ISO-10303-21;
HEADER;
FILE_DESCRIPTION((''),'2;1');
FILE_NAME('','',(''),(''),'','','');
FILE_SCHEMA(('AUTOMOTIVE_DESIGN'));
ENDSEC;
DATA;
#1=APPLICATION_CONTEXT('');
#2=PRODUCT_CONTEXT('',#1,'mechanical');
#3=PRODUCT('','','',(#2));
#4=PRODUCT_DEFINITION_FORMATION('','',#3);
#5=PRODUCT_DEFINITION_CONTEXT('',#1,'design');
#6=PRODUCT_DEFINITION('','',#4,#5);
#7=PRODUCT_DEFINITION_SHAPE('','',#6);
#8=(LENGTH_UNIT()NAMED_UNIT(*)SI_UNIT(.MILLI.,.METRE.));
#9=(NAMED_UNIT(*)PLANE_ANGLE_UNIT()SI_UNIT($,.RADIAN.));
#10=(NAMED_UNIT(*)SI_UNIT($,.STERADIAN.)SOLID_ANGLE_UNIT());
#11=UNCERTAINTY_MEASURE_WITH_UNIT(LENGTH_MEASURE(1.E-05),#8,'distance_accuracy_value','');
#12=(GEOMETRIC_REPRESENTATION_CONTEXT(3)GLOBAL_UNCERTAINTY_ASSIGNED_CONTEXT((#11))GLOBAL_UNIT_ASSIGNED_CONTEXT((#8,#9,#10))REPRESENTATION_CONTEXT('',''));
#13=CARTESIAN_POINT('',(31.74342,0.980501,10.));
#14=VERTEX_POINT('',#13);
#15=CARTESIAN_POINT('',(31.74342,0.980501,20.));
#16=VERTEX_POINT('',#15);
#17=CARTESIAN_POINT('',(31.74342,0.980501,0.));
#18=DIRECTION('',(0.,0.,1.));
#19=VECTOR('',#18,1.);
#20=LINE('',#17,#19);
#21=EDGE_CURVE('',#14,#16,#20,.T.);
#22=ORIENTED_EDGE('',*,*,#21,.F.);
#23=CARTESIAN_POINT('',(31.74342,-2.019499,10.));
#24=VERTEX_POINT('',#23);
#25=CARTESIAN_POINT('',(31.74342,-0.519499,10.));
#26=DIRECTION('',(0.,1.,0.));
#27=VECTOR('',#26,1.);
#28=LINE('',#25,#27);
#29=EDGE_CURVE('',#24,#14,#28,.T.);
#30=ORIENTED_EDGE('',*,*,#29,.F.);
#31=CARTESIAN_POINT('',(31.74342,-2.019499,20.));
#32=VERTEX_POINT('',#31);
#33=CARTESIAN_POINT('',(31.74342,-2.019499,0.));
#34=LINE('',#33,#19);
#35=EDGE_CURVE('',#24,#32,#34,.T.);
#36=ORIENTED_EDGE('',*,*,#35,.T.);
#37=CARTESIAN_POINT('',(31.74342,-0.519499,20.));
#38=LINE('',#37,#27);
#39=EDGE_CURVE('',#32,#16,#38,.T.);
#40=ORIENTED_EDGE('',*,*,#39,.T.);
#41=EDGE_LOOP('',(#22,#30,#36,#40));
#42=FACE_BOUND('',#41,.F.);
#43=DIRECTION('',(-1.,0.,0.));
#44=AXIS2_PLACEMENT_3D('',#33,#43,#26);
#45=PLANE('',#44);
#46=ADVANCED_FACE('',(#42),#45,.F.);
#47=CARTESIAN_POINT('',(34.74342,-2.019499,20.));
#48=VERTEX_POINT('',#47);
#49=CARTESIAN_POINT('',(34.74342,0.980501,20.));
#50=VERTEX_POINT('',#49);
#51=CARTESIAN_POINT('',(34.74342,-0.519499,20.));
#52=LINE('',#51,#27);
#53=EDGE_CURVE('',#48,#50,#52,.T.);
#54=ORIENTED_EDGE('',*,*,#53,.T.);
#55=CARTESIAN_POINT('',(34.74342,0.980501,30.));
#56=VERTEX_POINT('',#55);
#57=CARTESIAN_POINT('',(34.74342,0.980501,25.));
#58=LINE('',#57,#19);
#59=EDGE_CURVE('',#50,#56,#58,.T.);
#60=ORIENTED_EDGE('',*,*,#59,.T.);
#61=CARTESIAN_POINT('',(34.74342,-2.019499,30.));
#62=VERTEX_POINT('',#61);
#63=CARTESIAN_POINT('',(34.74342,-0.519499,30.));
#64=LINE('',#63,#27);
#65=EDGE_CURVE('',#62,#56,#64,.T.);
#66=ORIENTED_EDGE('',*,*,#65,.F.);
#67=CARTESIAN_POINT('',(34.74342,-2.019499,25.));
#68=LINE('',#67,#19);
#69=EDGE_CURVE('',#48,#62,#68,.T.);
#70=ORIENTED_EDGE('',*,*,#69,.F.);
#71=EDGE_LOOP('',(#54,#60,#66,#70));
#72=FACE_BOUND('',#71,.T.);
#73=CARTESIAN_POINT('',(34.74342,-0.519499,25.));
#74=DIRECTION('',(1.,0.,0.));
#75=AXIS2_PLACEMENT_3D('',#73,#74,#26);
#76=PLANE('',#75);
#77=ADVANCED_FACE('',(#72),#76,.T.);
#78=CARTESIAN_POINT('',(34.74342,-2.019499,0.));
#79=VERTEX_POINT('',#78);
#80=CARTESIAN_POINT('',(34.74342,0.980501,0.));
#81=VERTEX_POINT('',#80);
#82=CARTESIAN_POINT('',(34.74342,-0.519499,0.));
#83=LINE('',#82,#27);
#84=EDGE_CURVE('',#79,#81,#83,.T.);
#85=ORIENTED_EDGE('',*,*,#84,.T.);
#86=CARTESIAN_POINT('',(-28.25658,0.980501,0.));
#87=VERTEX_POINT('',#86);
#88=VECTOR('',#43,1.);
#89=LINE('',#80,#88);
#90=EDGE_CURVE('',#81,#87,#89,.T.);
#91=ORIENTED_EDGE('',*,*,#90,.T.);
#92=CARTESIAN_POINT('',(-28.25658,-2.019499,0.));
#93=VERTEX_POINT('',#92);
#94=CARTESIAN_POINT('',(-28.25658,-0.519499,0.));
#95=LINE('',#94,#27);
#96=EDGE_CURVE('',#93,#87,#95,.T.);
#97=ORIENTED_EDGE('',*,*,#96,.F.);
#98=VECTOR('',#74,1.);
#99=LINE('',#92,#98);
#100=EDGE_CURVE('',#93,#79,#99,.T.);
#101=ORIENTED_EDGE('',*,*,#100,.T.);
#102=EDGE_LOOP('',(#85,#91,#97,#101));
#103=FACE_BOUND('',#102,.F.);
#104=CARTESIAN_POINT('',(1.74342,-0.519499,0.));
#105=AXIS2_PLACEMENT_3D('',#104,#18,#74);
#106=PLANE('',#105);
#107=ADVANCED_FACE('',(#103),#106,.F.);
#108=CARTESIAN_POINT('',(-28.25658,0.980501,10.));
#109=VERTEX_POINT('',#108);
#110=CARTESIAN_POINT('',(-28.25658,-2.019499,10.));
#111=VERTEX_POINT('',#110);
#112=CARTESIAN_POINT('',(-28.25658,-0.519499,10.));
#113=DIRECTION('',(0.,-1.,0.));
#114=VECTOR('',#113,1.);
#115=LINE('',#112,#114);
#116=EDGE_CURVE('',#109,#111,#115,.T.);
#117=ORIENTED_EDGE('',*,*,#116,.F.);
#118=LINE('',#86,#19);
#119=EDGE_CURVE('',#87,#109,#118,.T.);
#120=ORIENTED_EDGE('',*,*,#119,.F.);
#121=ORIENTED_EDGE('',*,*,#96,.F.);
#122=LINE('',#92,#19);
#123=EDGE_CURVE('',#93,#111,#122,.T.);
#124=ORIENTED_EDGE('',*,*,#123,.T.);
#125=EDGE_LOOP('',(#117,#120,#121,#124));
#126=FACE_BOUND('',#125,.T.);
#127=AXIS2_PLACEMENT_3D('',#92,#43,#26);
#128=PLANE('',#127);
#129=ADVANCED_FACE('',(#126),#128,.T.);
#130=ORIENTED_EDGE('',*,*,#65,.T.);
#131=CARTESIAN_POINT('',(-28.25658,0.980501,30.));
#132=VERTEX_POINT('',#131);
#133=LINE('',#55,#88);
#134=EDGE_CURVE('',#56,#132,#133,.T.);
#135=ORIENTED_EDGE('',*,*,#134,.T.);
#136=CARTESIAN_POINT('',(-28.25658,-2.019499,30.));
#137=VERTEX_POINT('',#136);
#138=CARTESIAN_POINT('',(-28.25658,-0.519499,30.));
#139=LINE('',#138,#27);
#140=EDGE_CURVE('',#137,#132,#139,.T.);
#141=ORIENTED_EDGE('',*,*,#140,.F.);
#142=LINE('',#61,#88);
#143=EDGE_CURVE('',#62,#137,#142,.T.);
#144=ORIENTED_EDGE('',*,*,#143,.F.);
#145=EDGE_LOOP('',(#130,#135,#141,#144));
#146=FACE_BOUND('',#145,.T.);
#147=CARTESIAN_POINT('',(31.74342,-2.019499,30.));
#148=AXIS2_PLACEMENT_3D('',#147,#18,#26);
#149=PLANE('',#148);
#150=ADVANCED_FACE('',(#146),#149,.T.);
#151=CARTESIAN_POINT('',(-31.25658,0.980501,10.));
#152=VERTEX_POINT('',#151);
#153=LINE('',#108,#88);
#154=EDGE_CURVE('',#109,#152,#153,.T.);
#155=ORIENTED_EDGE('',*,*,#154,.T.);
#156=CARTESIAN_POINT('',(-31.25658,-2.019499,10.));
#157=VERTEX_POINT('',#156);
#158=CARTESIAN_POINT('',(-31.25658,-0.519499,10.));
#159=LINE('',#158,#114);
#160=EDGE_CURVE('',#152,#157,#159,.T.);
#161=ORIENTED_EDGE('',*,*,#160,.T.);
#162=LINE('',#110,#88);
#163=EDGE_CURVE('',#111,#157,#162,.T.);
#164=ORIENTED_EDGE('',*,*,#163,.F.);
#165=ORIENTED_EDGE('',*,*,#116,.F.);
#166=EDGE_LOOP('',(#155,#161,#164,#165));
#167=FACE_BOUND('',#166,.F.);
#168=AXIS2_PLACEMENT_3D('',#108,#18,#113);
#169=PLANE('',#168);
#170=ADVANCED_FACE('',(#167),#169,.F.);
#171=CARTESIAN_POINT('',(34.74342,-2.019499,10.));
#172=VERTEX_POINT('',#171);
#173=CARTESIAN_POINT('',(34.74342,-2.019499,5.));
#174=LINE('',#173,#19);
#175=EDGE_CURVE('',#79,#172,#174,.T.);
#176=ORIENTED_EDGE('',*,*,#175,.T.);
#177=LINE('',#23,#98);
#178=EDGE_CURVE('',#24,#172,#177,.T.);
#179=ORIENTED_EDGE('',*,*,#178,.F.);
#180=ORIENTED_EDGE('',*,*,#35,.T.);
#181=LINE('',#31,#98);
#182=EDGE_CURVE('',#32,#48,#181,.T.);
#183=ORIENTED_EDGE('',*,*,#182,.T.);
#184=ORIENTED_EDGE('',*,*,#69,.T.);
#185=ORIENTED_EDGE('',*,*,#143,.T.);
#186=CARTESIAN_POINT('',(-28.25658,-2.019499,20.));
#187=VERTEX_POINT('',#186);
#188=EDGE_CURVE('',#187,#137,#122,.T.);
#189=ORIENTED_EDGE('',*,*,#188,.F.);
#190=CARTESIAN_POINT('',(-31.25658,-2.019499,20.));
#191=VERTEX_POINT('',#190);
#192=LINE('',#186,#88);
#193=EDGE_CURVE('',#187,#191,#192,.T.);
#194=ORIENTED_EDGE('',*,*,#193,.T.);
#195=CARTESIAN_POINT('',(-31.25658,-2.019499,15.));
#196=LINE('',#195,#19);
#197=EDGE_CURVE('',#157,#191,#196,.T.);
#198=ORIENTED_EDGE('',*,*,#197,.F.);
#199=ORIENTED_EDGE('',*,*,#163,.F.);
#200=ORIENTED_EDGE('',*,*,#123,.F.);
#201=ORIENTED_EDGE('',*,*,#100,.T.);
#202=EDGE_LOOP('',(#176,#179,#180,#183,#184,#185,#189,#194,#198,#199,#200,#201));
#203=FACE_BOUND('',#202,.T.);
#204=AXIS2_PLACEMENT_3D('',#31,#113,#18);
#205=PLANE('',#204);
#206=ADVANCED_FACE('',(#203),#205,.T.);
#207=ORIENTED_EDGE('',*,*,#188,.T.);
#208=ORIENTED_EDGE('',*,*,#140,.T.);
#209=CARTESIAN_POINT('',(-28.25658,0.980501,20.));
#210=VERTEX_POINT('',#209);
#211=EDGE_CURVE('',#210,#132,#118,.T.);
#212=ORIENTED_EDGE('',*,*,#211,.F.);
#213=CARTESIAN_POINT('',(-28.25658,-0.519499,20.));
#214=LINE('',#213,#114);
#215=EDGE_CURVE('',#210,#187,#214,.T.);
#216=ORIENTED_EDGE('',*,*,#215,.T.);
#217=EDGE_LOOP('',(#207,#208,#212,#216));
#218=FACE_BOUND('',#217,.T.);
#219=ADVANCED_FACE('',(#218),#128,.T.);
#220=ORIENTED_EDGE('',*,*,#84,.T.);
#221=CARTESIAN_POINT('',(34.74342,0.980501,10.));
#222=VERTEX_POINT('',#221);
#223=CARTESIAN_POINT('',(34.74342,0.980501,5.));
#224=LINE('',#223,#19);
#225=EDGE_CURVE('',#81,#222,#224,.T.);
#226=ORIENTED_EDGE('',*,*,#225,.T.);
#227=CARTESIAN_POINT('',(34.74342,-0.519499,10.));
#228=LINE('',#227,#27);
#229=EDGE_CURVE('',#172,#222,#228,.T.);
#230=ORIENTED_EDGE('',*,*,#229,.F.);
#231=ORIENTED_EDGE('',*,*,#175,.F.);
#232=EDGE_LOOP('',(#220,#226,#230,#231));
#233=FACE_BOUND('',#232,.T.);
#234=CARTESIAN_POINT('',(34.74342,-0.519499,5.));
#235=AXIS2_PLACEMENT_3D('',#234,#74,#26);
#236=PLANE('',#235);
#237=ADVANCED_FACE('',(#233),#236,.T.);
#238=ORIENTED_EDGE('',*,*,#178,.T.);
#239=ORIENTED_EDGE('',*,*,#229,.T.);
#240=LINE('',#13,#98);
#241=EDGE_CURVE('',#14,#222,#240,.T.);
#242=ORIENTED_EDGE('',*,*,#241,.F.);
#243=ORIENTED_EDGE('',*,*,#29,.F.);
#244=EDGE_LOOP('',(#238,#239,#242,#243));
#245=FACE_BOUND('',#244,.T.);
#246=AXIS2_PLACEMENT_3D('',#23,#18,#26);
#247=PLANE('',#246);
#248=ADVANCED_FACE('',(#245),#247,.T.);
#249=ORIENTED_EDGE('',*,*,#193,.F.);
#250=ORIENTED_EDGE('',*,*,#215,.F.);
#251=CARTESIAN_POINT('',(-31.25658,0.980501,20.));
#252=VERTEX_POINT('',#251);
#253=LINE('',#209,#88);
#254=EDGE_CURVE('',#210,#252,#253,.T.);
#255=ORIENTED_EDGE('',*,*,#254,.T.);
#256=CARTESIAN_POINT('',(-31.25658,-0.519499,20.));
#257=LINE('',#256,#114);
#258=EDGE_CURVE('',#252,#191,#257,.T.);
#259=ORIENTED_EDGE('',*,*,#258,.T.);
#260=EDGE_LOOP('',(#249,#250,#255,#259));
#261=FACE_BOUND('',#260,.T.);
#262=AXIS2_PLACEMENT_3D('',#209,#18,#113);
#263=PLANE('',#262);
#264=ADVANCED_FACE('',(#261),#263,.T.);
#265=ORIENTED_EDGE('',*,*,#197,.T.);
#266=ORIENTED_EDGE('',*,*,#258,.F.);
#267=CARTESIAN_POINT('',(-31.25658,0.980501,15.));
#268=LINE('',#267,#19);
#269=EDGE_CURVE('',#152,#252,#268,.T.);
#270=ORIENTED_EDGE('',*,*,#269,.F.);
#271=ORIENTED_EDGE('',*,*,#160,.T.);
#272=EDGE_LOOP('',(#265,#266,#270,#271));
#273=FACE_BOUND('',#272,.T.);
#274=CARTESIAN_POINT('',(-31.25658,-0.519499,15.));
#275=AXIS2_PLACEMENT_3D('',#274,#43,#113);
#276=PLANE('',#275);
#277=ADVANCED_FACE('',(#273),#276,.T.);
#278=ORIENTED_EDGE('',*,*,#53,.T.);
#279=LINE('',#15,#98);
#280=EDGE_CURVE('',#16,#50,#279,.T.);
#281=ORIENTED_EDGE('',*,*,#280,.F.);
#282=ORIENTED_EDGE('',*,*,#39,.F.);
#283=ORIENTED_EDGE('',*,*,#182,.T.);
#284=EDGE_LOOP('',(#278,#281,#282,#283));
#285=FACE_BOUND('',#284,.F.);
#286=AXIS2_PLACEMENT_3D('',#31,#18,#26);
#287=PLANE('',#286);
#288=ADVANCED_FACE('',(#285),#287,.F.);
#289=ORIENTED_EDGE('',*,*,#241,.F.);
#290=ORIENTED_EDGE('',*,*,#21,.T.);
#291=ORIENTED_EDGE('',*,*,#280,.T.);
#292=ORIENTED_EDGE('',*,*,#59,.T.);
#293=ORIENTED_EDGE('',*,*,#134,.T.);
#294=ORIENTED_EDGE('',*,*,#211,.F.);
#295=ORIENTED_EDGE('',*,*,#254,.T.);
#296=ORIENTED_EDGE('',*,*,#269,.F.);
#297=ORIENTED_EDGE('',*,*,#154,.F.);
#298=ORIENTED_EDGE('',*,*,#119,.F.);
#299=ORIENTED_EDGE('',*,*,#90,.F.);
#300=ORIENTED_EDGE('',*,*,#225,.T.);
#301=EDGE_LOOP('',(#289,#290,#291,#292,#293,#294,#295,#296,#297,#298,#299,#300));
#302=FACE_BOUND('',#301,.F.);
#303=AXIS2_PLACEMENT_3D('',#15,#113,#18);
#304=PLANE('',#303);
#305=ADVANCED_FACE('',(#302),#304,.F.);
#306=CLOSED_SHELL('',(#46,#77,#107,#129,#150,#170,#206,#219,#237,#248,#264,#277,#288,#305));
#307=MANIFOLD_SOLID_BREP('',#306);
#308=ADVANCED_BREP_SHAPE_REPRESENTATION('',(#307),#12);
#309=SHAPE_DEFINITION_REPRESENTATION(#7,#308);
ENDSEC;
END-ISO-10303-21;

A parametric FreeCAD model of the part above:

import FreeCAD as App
import Part
import Sketcher

V = App.Vector

doc = App.newDocument("Part")
body = doc.addObject("PartDesign::Body", "Body")

# Sketch on XY plane
sketch1 = body.newObject("Sketcher::SketchObject", "Sketch")
sketch1.AttachmentSupport = (doc.getObject("XY_Plane"), [""])
sketch1.MapMode = "FlatFace"
sketch1.addGeometry([
    Part.LineSegment(V(-28.3, 1, 0), V(-28.3, -2, 0)),
    Part.LineSegment(V(-28.3, -2, 0), V(31.7, -2, 0)),
    Part.LineSegment(V(31.7, -2, 0), V(31.7, 1, 0)),
    Part.LineSegment(V(31.7, 1, 0), V(-28.3, 1, 0)),
], False)
sketch1.addConstraint([
    Sketcher.Constraint("Coincident", 0, 2, 1, 1),
    Sketcher.Constraint("Coincident", 1, 2, 2, 1),
    Sketcher.Constraint("Coincident", 2, 2, 3, 1),
    Sketcher.Constraint("Coincident", 3, 2, 0, 1),
    Sketcher.Constraint("Vertical", 0),
    Sketcher.Constraint("Horizontal", 1),
    Sketcher.Constraint("Vertical", 2),
    Sketcher.Constraint("Horizontal", 3),
    Sketcher.Constraint("DistanceX", 1, 1, 1, 2, 60.0),
    Sketcher.Constraint("DistanceY", 0, 2, 0, 1, 3.0),
    Sketcher.Constraint("DistanceY", 0, 2, -1, 1, 2.019499),
    Sketcher.Constraint("DistanceX", 0, 2, -1, 1, 28.25658),
])
pad1 = body.newObject("PartDesign::Pad", "Pad")
pad1.Profile = sketch1
pad1.Length = 30

# Sketch on YZ plane
sketch2 = body.newObject("Sketcher::SketchObject", "Sketch001")
sketch2.AttachmentSupport = (doc.getObject("YZ_Plane"), [""])
sketch2.MapMode = "FlatFace"
sketch2.AttachmentOffset = App.Placement(V(0, 0, 31.74342), App.Rotation())
sketch2.addGeometry([
    Part.LineSegment(V(-2, 30, 0), V(-2, 20, 0)),  # 0
    Part.LineSegment(V(-2, 20, 0), V(1, 20, 0)),  # 1
    Part.LineSegment(V(1, 20, 0), V(1, 30, 0)),  # 2
    Part.LineSegment(V(1, 30, 0), V(-2, 30, 0)),  # 3
    Part.LineSegment(V(-2, 10, 0), V(-2, 0, 0)),  # 4
    Part.LineSegment(V(-2, 0, 0), V(1, 0, 0)),  # 5
    Part.LineSegment(V(1, 0, 0), V(1, 10, 0)),  # 6
    Part.LineSegment(V(1, 10, 0), V(-2, 10, 0)),  # 7
], False)
sketch2.addConstraint([
    Sketcher.Constraint("Coincident", 0, 2, 1, 1),
    Sketcher.Constraint("Coincident", 1, 2, 2, 1),
    Sketcher.Constraint("Coincident", 2, 2, 3, 1),
    Sketcher.Constraint("Coincident", 3, 2, 0, 1),
    Sketcher.Constraint("Coincident", 4, 2, 5, 1),
    Sketcher.Constraint("Coincident", 5, 2, 6, 1),
    Sketcher.Constraint("Coincident", 6, 2, 7, 1),
    Sketcher.Constraint("Coincident", 7, 2, 4, 1),
    Sketcher.Constraint("Vertical", 0),
    Sketcher.Constraint("Horizontal", 1),
    Sketcher.Constraint("Vertical", 2),
    Sketcher.Constraint("Horizontal", 3),
    Sketcher.Constraint("Vertical", 4),
    Sketcher.Constraint("Horizontal", 5),
    Sketcher.Constraint("Vertical", 6),
    Sketcher.Constraint("Horizontal", 7),
    Sketcher.Constraint("PointOnObject", 4, 2, -1),
    Sketcher.Constraint("Vertical", 3, 2, 4, 2),
    Sketcher.Constraint("Vertical", 2, 2, 5, 2),
    Sketcher.Constraint("Equal", 2, 4),
    Sketcher.Constraint("DistanceX", 1, 1, 1, 2, 3.0),
    Sketcher.Constraint("DistanceY", 0, 2, 0, 1, 10.0),
    Sketcher.Constraint("DistanceY", -1, 1, 0, 2, 20.0),
    Sketcher.Constraint("DistanceX", 0, 2, -1, 1, 2.019499),
])
pad2 = body.newObject("PartDesign::Pad", "Pad001")
pad2.Profile = sketch2
pad2.Length = 3

# Sketch on YZ plane
sketch3 = body.newObject("Sketcher::SketchObject", "Sketch002")
sketch3.AttachmentSupport = (doc.getObject("YZ_Plane"), [""])
sketch3.MapMode = "FlatFace"
sketch3.AttachmentOffset = App.Placement(V(0, 0, -28.25658), App.Rotation())
sketch3.addGeometry([
    Part.LineSegment(V(1, 20, 0), V(1, 10, 0)),
    Part.LineSegment(V(1, 10, 0), V(-2, 10, 0)),
    Part.LineSegment(V(-2, 10, 0), V(-2, 20, 0)),
    Part.LineSegment(V(-2, 20, 0), V(1, 20, 0)),
], False)
sketch3.addConstraint([
    Sketcher.Constraint("Coincident", 0, 2, 1, 1),
    Sketcher.Constraint("Coincident", 1, 2, 2, 1),
    Sketcher.Constraint("Coincident", 2, 2, 3, 1),
    Sketcher.Constraint("Coincident", 3, 2, 0, 1),
    Sketcher.Constraint("Vertical", 0),
    Sketcher.Constraint("Horizontal", 1),
    Sketcher.Constraint("Vertical", 2),
    Sketcher.Constraint("Horizontal", 3),
    Sketcher.Constraint("DistanceX", 1, 2, 1, 1, 3.0),
    Sketcher.Constraint("DistanceY", 0, 2, 0, 1, 10.0),
    Sketcher.Constraint("DistanceY", -1, 1, 0, 2, 10.0),
    Sketcher.Constraint("DistanceX", -1, 1, 0, 2, 0.980501),
])
pad3 = body.newObject("PartDesign::Pad", "Pad002")
pad3.Profile = sketch3
pad3.Length = 3
pad3.Reversed = True

doc.recompute()
